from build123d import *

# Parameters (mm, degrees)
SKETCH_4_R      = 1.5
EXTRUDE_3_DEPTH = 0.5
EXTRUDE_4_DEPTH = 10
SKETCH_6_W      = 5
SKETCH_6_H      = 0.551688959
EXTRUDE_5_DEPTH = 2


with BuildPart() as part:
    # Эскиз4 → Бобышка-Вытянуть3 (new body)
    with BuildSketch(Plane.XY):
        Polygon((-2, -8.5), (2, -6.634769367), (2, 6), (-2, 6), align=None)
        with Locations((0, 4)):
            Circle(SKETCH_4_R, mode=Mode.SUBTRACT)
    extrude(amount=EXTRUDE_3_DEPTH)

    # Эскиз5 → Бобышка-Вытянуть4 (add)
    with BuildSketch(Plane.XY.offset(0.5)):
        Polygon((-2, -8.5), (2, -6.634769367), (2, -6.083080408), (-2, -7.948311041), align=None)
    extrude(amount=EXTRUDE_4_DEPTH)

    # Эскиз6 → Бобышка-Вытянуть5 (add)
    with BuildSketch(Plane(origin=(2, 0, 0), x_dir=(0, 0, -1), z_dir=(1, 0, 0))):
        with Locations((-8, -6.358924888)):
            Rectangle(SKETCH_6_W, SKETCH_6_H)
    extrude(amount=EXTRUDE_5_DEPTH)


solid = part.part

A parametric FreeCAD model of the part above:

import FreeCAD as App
import Part
import Sketcher
Q = App.Units.Quantity

doc = App.newDocument("Part")
body = doc.addObject("PartDesign::Body", "Body")

# Sketch on XY plane
sketch1 = doc.addObject("Sketcher::SketchObject", "Sketch")
body.addObject(sketch1)
sketch1.AttachmentSupport = (doc.XY_Plane, [""])
sketch1.MapMode = "FlatFace"
sketch1.addGeometry([
    Part.LineSegment(App.Vector(-2, -8.5, 0), App.Vector(2, -6.6, 0)),  # 0
    Part.LineSegment(App.Vector(2, -6.6, 0), App.Vector(2, 6, 0)),  # 1
    Part.LineSegment(App.Vector(2, 6, 0), App.Vector(-2, 6, 0)),  # 2
    Part.LineSegment(App.Vector(-2, 6, 0), App.Vector(-2, -8.5, 0)),  # 3
    Part.Circle(App.Vector(0, 4, 0), App.Vector(0, 0, 1), 1.5),  # 4
], False)
sketch1.addConstraint([
    Sketcher.Constraint("Coincident", 0, 2, 1, 1),
    Sketcher.Constraint("Coincident", 1, 2, 2, 1),
    Sketcher.Constraint("Coincident", 2, 2, 3, 1),
    Sketcher.Constraint("Coincident", 3, 2, 0, 1),
    Sketcher.Constraint("Vertical", 1),
    Sketcher.Constraint("Horizontal", 2),
    Sketcher.Constraint("Vertical", 3),
    Sketcher.Constraint("PointOnObject", 4, 3, -2),
    Sketcher.Constraint("Diameter", 4, Q("3 mm")),
    Sketcher.Constraint("DistanceX", 2, 2, 2, 1, Q("4 mm")),
    Sketcher.Constraint("Angle", 0, Q("25 deg")),
    Sketcher.Constraint("DistanceY", 3, 2, 3, 1, Q("14.5 mm")),
    Sketcher.Constraint("DistanceY", -1, 1, 4, 3, Q("4 mm")),
    Sketcher.Constraint("DistanceX", -1, 1, 0, 2, Q("2 mm")),
    Sketcher.Constraint("DistanceY", -1, 1, 1, 2, Q("6 mm")),
])
pad1 = doc.addObject("PartDesign::Pad", "Pad")
body.addObject(pad1)
pad1.Profile = sketch1
pad1.Length = 0.5

# Sketch on XY plane
sketch2 = doc.addObject("Sketcher::SketchObject", "Sketch001")
body.addObject(sketch2)
sketch2.AttachmentSupport = (doc.XY_Plane, [""])
sketch2.MapMode = "FlatFace"
sketch2.AttachmentOffset = App.Placement(App.Vector(0, 0, 0.5), App.Rotation())
sketch2.addGeometry([
    Part.LineSegment(App.Vector(-2, -8.5, 0), App.Vector(2, -6.6, 0)),
    Part.LineSegment(App.Vector(2, -6.6, 0), App.Vector(2, -6.1, 0)),
    Part.LineSegment(App.Vector(2, -6.1, 0), App.Vector(-2, -7.9, 0)),
    Part.LineSegment(App.Vector(-2, -7.9, 0), App.Vector(-2, -8.5, 0)),
], False)
sketch2.addConstraint([
    Sketcher.Constraint("Coincident", 0, 2, 1, 1),
    Sketcher.Constraint("Coincident", 1, 2, 2, 1),
    Sketcher.Constraint("Coincident", 2, 2, 3, 1),
    Sketcher.Constraint("Coincident", 3, 2, 0, 1),
    Sketcher.Constraint("Vertical", 1),
    Sketcher.Constraint("Vertical", 3),
    Sketcher.Constraint("Parallel", 0, 2),
    Sketcher.Constraint("Angle", 0, Q("25 deg")),
    Sketcher.Constraint("DistanceX", -1, 1, 0, 2, Q("2 mm")),
    Sketcher.Constraint("DistanceX", 2, 2, -1, 1, Q("2 mm")),
    Sketcher.Constraint("DistanceY", 3, 2, -1, 1, Q("8.5 mm")),
    Sketcher.Constraint("DistanceY", 1, 1, 1, 2, Q("0.551689 mm")),
])
pad2 = doc.addObject("PartDesign::Pad", "Pad001")
body.addObject(pad2)
pad2.Profile = sketch2
pad2.Length = 10

# Sketch on YZ plane
sketch3 = doc.addObject("Sketcher::SketchObject", "Sketch002")
body.addObject(sketch3)
sketch3.AttachmentSupport = (doc.YZ_Plane, [""])
sketch3.MapMode = "FlatFace"
sketch3.AttachmentOffset = App.Placement(App.Vector(0, 0, 2), App.Rotation())
sketch3.addGeometry([
    Part.LineSegment(App.Vector(-6.1, 10.5, 0), App.Vector(-6.6, 10.5, 0)),
    Part.LineSegment(App.Vector(-6.6, 10.5, 0), App.Vector(-6.6, 5.5, 0)),
    Part.LineSegment(App.Vector(-6.6, 5.5, 0), App.Vector(-6.1, 5.5, 0)),
    Part.LineSegment(App.Vector(-6.1, 5.5, 0), App.Vector(-6.1, 10.5, 0)),
], False)
sketch3.addConstraint([
    Sketcher.Constraint("Coincident", 0, 2, 1, 1),
    Sketcher.Constraint("Coincident", 1, 2, 2, 1),
    Sketcher.Constraint("Coincident", 2, 2, 3, 1),
    Sketcher.Constraint("Coincident", 3, 2, 0, 1),
    Sketcher.Constraint("Horizontal", 0),
    Sketcher.Constraint("Vertical", 1),
    Sketcher.Constraint("Horizontal", 2),
    Sketcher.Constraint("Vertical", 3),
    Sketcher.Constraint("DistanceY", 1, 2, 1, 1, Q("5 mm")),
    Sketcher.Constraint("DistanceY", -1, 1, 0, 2, Q("10.5 mm")),
    Sketcher.Constraint("DistanceX", 0, 2, 0, 1, Q("0.551689 mm")),
    Sketcher.Constraint("DistanceX", 0, 2, -1, 1, Q("6.634769 mm")),
])
pad3 = doc.addObject("PartDesign::Pad", "Pad002")
body.addObject(pad3)
pad3.Profile = sketch3
pad3.Length = 2

doc.recompute()
